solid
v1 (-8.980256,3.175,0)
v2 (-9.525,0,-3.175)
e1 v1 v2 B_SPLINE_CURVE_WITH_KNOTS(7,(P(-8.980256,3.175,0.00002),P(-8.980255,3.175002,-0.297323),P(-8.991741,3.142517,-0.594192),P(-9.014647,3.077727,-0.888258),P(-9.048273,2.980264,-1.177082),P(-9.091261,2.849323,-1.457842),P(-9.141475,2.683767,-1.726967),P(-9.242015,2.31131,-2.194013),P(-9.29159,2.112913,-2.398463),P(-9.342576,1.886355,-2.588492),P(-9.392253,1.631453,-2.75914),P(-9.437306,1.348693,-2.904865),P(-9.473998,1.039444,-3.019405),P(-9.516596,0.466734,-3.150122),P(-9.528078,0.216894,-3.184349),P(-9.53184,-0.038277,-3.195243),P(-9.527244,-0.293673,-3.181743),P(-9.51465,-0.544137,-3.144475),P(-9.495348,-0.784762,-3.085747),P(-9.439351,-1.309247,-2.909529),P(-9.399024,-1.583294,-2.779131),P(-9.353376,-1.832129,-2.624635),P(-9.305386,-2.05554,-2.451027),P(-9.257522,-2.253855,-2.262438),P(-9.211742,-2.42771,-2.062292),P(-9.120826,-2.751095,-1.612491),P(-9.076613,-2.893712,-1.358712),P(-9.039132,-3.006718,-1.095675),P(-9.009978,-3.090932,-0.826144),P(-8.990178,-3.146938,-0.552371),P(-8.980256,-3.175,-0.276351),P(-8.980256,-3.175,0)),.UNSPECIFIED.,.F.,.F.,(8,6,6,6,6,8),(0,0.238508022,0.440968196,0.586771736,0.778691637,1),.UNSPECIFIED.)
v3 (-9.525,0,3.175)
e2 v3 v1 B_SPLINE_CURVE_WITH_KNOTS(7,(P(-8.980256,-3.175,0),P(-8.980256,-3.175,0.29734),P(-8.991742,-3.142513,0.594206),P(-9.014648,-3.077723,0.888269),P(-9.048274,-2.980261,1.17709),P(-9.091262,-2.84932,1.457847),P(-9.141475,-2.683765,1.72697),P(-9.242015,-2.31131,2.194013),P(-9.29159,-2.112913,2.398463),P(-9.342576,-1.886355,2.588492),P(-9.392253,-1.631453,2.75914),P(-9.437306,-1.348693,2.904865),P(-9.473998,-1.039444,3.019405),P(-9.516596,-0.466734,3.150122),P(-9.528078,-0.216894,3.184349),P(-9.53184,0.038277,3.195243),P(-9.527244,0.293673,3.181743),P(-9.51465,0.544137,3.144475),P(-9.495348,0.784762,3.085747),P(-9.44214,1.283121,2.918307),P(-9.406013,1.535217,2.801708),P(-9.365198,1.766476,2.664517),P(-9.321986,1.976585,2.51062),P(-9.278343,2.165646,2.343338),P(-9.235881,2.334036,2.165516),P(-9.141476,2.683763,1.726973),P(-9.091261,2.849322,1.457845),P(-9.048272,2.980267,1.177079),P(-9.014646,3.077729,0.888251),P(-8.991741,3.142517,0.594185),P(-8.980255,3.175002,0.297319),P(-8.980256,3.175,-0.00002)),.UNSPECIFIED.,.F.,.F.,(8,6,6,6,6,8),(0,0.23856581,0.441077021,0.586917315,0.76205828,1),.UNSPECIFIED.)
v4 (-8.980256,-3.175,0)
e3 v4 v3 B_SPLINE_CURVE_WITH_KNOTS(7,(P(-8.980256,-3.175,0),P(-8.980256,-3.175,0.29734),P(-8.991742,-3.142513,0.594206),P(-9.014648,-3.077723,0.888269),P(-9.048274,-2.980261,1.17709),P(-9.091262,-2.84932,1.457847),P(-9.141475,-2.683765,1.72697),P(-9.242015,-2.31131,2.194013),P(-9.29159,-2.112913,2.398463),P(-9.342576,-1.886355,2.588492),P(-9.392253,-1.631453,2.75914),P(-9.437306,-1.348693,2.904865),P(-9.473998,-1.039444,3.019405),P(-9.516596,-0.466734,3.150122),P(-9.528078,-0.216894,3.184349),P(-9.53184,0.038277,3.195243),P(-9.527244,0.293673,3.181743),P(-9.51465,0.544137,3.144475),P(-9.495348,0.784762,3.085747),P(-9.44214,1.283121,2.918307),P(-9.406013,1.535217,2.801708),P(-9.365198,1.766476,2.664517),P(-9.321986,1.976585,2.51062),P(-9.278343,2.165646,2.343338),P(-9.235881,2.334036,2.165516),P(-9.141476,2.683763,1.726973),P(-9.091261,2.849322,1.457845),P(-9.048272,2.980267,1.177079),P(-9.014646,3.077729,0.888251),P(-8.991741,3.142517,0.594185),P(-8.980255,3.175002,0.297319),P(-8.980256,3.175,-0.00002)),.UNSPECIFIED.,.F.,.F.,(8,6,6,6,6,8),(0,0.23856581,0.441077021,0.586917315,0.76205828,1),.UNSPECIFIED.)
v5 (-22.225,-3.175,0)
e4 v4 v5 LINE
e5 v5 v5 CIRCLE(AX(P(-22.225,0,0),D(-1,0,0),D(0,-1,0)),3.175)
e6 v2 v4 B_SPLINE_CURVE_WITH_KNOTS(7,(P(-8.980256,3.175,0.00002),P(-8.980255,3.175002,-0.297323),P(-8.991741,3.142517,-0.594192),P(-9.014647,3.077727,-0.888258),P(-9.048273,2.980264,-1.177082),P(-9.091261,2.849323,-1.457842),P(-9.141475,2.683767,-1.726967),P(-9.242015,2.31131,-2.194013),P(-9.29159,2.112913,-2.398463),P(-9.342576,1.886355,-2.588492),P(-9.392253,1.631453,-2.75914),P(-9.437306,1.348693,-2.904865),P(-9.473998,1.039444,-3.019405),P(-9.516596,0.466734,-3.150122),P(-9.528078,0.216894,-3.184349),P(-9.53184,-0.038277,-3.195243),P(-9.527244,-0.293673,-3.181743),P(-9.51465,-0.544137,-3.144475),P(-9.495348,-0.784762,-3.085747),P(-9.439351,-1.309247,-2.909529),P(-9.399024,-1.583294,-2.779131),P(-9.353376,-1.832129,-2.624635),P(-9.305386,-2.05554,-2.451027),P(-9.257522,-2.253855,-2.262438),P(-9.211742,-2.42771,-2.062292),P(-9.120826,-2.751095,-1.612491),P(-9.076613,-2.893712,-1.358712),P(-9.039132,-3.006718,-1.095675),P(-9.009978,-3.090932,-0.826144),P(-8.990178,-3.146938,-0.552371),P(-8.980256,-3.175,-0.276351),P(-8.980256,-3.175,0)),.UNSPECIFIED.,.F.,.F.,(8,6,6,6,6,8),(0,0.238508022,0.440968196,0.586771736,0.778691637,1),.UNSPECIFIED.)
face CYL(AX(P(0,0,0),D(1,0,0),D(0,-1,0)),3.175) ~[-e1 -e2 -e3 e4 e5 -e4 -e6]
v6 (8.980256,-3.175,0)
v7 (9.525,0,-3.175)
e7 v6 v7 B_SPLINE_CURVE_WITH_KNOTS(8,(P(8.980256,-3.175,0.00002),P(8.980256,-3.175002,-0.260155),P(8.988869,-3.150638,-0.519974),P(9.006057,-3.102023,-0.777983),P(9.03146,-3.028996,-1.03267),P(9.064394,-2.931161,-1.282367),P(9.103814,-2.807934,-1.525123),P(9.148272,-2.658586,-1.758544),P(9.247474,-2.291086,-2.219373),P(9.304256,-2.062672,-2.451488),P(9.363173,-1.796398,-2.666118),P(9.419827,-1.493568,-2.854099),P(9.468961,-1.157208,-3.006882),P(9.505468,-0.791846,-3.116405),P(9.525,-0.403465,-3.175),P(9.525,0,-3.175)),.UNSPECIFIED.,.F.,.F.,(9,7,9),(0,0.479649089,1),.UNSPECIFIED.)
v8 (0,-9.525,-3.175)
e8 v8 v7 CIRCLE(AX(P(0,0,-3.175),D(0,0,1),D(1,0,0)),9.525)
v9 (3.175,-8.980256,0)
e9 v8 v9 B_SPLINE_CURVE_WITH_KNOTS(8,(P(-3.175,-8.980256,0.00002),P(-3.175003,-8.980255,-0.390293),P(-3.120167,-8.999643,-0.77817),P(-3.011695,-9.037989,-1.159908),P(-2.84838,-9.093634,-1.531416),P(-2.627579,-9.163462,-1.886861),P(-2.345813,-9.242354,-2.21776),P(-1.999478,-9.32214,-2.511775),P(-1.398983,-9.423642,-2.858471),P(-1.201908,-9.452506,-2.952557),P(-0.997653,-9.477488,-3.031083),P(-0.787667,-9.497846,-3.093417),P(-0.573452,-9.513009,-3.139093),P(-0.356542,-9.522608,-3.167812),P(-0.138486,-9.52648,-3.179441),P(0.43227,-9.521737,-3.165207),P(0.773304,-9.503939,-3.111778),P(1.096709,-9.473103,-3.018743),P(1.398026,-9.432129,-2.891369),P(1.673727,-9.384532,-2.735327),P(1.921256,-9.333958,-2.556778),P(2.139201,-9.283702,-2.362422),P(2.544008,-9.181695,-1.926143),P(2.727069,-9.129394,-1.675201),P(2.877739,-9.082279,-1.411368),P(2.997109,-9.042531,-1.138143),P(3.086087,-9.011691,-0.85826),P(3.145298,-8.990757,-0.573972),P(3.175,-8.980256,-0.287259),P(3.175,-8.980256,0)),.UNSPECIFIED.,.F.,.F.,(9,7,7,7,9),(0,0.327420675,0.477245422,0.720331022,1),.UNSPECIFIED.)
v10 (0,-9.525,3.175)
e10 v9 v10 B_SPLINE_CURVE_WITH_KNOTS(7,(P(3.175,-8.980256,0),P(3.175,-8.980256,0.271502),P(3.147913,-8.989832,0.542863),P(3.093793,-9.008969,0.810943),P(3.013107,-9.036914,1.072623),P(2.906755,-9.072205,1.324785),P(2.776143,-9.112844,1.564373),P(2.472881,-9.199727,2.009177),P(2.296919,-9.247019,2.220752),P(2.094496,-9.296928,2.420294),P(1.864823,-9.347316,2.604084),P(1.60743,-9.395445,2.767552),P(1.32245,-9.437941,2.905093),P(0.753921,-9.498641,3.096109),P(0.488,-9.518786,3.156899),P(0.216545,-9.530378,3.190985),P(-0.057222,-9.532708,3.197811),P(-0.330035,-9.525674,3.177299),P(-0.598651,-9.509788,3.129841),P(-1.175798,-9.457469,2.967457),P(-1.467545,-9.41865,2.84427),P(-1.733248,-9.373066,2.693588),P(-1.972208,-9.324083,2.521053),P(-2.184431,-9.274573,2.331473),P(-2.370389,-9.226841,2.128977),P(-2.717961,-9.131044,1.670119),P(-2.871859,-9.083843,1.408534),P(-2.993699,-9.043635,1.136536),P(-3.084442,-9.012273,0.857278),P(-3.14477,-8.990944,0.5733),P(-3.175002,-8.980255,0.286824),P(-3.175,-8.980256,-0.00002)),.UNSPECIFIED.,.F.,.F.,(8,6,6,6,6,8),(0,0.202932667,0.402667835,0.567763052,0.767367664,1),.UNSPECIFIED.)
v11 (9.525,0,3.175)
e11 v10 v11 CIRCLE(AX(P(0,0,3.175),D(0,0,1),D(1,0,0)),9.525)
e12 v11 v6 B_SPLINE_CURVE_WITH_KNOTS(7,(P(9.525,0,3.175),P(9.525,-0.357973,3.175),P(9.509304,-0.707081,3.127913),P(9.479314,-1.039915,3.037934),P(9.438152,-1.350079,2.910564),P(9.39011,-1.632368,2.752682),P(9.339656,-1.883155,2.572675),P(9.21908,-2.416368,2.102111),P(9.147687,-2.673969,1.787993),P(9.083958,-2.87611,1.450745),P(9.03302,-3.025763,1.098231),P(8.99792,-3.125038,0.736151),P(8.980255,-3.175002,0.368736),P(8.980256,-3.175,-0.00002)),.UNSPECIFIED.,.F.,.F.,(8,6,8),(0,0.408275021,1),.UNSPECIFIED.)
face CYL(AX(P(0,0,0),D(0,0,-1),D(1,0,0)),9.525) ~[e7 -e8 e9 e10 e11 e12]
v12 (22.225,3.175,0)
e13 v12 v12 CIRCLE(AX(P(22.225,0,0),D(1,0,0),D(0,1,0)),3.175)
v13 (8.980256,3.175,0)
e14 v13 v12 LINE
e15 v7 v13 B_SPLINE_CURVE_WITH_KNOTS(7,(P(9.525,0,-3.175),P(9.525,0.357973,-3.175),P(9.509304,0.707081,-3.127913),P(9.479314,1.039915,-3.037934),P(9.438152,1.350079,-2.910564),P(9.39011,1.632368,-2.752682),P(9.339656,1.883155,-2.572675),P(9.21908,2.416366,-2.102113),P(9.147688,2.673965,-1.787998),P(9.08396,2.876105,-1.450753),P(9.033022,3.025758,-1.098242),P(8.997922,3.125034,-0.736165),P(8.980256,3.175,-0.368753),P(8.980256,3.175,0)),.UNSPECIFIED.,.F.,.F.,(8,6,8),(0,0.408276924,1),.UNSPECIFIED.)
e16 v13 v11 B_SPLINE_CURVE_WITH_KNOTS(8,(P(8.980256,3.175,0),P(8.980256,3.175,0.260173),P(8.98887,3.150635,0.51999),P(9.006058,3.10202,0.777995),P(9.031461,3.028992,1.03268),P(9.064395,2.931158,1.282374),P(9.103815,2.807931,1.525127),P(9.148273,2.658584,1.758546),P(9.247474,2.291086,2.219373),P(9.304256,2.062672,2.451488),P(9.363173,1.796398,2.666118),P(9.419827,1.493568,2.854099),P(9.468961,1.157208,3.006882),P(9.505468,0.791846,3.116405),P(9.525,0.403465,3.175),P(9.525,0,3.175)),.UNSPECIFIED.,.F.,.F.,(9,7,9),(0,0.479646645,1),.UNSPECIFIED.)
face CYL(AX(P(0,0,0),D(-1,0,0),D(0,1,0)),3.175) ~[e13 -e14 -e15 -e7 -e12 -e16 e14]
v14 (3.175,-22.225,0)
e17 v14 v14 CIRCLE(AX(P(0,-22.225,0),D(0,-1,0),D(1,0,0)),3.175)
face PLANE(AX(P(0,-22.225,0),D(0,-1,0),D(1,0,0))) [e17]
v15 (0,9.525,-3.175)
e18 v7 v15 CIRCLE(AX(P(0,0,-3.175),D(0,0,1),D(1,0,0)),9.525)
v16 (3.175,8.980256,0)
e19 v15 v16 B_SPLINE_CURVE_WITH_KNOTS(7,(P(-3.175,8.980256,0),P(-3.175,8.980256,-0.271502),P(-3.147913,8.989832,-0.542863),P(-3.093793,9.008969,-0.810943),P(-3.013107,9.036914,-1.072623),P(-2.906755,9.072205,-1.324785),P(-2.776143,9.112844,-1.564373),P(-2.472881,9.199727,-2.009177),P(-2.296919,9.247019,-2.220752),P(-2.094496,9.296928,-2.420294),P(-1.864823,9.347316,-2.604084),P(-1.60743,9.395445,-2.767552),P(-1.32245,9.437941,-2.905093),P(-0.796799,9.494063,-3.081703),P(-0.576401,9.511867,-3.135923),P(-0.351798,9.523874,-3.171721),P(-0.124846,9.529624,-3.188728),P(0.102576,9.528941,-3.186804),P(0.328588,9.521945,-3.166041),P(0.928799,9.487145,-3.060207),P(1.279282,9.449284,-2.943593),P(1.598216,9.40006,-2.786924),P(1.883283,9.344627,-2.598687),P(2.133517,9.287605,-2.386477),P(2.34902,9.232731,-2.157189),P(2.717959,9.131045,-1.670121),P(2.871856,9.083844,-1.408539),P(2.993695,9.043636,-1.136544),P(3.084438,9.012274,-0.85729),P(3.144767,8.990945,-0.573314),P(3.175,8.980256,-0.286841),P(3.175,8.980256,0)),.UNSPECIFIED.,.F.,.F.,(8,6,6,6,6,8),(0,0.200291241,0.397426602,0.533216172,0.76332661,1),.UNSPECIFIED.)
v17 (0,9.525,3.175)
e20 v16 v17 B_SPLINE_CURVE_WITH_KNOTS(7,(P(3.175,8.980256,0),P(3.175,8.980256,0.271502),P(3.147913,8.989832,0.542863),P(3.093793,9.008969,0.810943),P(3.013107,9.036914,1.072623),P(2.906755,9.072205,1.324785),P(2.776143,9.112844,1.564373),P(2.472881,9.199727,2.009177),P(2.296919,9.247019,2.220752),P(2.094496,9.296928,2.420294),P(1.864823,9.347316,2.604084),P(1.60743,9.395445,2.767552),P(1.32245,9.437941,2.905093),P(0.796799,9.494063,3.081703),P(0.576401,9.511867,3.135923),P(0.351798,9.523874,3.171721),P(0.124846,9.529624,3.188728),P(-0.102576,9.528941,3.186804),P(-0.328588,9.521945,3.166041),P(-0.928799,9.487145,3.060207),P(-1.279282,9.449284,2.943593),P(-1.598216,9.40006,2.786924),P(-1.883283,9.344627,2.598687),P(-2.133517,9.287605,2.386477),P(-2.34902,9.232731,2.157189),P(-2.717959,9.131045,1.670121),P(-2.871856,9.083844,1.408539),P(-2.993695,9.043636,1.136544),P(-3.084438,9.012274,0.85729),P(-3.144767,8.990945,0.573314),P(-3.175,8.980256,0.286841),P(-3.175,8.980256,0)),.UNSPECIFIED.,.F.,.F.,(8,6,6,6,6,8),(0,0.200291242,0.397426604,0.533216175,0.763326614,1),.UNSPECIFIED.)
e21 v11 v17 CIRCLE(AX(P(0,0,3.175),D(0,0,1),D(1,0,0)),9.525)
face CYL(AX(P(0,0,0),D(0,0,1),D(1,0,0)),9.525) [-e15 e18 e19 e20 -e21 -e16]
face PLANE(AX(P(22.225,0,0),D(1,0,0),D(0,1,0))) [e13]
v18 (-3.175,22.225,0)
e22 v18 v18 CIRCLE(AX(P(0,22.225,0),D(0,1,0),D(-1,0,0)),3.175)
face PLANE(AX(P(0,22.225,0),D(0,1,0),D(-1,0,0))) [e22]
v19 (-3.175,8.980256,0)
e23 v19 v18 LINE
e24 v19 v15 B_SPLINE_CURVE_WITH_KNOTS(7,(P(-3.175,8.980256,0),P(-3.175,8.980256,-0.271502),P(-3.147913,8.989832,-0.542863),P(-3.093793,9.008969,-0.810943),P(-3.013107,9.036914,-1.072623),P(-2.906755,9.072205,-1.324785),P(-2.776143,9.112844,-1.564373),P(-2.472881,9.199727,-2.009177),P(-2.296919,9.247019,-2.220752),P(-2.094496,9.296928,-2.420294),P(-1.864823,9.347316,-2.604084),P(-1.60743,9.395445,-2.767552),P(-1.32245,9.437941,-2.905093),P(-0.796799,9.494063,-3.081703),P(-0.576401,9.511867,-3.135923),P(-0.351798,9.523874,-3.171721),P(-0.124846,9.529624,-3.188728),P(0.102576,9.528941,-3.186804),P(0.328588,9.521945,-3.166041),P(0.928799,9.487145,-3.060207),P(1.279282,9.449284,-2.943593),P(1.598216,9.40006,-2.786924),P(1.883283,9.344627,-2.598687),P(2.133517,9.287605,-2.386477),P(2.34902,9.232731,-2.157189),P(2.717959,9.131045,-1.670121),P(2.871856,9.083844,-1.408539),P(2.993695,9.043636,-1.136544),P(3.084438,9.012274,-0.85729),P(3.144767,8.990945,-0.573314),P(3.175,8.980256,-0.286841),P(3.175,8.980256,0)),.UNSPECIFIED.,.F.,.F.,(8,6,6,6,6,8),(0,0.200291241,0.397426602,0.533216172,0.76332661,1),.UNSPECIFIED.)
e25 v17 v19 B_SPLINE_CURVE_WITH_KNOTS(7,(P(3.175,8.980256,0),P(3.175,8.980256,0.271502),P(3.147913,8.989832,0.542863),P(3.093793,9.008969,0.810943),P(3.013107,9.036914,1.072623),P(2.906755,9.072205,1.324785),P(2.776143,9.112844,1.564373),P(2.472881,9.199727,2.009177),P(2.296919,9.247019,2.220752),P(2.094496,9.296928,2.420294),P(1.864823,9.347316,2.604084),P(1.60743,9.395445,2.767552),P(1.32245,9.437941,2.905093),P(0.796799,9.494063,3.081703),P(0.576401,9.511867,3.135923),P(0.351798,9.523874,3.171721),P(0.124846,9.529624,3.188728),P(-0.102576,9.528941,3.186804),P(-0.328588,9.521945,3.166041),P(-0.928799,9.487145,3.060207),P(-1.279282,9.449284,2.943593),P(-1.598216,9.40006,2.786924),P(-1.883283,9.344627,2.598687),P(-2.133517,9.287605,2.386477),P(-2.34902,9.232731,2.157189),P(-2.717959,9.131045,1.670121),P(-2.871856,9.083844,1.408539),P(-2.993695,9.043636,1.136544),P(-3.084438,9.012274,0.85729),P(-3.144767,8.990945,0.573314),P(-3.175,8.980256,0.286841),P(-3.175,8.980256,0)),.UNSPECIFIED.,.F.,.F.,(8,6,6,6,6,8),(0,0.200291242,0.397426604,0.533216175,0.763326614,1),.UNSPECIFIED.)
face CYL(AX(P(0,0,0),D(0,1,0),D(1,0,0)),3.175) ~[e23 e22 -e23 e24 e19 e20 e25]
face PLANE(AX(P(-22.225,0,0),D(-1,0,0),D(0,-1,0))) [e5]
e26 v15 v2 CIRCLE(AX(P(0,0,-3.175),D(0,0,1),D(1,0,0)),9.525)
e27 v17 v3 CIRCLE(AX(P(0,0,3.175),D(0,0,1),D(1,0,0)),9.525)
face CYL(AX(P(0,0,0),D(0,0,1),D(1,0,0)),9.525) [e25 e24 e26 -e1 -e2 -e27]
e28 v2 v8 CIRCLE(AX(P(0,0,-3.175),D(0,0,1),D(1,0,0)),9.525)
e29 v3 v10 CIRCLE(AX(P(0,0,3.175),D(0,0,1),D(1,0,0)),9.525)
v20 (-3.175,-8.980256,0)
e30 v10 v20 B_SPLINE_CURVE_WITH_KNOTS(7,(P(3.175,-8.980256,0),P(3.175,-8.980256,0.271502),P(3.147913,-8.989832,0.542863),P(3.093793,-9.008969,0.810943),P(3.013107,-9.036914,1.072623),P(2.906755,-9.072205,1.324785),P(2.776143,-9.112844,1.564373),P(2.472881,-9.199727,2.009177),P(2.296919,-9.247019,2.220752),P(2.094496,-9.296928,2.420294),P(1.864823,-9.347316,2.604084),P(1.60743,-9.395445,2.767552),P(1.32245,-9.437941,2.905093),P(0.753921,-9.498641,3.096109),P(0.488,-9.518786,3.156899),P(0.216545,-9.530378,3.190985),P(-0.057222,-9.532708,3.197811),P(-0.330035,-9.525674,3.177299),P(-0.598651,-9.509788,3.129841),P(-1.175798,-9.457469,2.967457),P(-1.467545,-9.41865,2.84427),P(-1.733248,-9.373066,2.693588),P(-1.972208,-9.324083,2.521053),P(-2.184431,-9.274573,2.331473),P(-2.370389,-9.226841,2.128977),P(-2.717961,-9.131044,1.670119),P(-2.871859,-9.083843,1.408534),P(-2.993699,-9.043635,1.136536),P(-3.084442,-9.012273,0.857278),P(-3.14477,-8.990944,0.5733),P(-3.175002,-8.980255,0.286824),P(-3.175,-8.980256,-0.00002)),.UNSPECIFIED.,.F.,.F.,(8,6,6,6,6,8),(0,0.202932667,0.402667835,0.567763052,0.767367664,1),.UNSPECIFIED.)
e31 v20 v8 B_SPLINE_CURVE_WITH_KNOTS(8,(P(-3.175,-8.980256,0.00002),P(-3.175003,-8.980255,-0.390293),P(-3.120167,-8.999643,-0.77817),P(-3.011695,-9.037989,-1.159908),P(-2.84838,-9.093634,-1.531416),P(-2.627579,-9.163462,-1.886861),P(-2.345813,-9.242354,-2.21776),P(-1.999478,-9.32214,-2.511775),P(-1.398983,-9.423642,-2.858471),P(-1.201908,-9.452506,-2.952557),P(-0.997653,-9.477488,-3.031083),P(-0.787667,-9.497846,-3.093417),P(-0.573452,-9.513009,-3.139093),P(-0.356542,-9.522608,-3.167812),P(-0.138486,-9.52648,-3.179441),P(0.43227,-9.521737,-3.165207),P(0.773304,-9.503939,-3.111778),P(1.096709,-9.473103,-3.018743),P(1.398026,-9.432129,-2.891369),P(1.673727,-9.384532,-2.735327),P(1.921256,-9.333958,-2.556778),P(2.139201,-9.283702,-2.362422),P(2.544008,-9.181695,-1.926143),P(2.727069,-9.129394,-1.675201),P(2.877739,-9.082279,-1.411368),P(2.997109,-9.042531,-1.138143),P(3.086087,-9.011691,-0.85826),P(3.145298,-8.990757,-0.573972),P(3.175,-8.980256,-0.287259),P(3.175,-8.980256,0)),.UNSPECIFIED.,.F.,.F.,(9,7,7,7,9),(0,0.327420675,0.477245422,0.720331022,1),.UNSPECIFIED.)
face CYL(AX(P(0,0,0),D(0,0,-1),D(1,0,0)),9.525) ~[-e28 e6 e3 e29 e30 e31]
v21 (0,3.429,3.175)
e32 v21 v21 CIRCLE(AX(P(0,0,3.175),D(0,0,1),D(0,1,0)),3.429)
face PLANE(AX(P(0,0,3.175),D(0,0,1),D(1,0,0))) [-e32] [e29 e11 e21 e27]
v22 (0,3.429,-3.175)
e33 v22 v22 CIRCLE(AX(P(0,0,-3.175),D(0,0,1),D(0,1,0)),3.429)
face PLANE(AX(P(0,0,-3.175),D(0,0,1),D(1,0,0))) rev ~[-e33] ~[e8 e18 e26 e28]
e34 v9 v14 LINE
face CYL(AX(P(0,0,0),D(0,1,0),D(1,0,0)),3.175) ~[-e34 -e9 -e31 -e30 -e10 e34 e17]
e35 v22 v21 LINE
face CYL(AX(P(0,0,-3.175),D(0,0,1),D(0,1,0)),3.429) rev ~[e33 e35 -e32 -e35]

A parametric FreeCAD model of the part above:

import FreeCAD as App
import Part
import Sketcher
from FreeCAD import Vector
Q = App.Units.Quantity

doc = App.newDocument("Part")
params = doc.addObject("Spreadsheet::Sheet", "Params")
for row, (alias, value) in enumerate([
    ("sketch1_diameter", "0.25 in"),
    ("pad1_length", "0.875 in"),
    ("sketch2_diameter", "0.75 in"),
    ("pad2_length", "0.25 in"),
    ("sketch3_diameter", "0.27 in"),
    ("hole_diameter", "0.27 in"),
    ("hole_depth", "1 in"),
], start=1):
    params.set(f"A{row}", alias)
    params.set(f"B{row}", "=" + value)
    params.setAlias(f"B{row}", alias)

body = doc.addObject("PartDesign::Body", "Body")

# Sketch on XZ plane
sketch1 = body.newObject("Sketcher::SketchObject", "Sketch")
sketch1.AttachmentSupport = (doc.getObject("XZ_Plane"), [""])
sketch1.MapMode = "FlatFace"
sketch1.addGeometry(Part.Circle(Vector(0, 0, 0), Vector(0, 0, 1), 3.2), False)
sketch1.addConstraint(Sketcher.Constraint("Coincident", 0, 3, -1, 1))
sketch1.addConstraint(Sketcher.Constraint("Diameter", 0, Q("0.25 in")))
sketch1.setExpression("Constraints[1]", "Params.sketch1_diameter")
pad1 = body.newObject("PartDesign::Pad", "Pad")
pad1.Profile = sketch1
pad1.setExpression("Length", "Params.pad1_length")
pad1.Reversed = True
doc.recompute()

polarpattern = body.newObject("PartDesign::PolarPattern", "PolarPattern")
polarpattern.Originals = [pad1]
polarpattern.Axis = (doc.getObject("Z_Axis"), [""])
polarpattern.Angle = 360
polarpattern.Occurrences = 4
body.Tip = polarpattern

# Sketch on XY plane
sketch2 = body.newObject("Sketcher::SketchObject", "Sketch001")
sketch2.AttachmentSupport = (doc.getObject("XY_Plane"), [""])
sketch2.MapMode = "FlatFace"
sketch2.addGeometry(Part.Circle(Vector(0, 0, 0), Vector(0, 0, 1), 10), False)
sketch2.addConstraint(Sketcher.Constraint("Coincident", 0, 3, -1, 1))
sketch2.addConstraint(Sketcher.Constraint("Diameter", 0, Q("0.75 in")))
sketch2.setExpression("Constraints[1]", "Params.sketch2_diameter")
pad2 = body.newObject("PartDesign::Pad", "Pad001")
pad2.Profile = sketch2
pad2.setExpression("Length", "Params.pad2_length")
pad2.Midplane = True

# Sketch on XY plane
sketch3 = body.newObject("Sketcher::SketchObject", "Sketch002")
sketch3.AttachmentSupport = (doc.getObject("XY_Plane"), [""])
sketch3.MapMode = "FlatFace"
sketch3.AttachmentOffset = App.Placement(Vector(0, 0, -0.125 * 25.4), App.Rotation())
sketch3.addGeometry(Part.Circle(Vector(0, 0, 0), Vector(0, 0, 1), 3.4), False)
sketch3.addConstraint(Sketcher.Constraint("Coincident", 0, 3, -1, 1))
sketch3.addConstraint(Sketcher.Constraint("Diameter", 0, Q("0.27 in")))
sketch3.setExpression("Constraints[1]", "Params.sketch3_diameter")
doc.recompute()
hole = body.newObject("PartDesign::Hole", "Hole")
hole.Profile = sketch3
hole.ThreadType = "None"
hole.setExpression("Diameter", "Params.hole_diameter")
hole.DepthType = "Dimension"
hole.setExpression("Depth", "Params.hole_depth")
hole.DrillPoint = "Angled"
hole.DrillPointAngle = 118
hole.Reversed = True

doc.recompute()
